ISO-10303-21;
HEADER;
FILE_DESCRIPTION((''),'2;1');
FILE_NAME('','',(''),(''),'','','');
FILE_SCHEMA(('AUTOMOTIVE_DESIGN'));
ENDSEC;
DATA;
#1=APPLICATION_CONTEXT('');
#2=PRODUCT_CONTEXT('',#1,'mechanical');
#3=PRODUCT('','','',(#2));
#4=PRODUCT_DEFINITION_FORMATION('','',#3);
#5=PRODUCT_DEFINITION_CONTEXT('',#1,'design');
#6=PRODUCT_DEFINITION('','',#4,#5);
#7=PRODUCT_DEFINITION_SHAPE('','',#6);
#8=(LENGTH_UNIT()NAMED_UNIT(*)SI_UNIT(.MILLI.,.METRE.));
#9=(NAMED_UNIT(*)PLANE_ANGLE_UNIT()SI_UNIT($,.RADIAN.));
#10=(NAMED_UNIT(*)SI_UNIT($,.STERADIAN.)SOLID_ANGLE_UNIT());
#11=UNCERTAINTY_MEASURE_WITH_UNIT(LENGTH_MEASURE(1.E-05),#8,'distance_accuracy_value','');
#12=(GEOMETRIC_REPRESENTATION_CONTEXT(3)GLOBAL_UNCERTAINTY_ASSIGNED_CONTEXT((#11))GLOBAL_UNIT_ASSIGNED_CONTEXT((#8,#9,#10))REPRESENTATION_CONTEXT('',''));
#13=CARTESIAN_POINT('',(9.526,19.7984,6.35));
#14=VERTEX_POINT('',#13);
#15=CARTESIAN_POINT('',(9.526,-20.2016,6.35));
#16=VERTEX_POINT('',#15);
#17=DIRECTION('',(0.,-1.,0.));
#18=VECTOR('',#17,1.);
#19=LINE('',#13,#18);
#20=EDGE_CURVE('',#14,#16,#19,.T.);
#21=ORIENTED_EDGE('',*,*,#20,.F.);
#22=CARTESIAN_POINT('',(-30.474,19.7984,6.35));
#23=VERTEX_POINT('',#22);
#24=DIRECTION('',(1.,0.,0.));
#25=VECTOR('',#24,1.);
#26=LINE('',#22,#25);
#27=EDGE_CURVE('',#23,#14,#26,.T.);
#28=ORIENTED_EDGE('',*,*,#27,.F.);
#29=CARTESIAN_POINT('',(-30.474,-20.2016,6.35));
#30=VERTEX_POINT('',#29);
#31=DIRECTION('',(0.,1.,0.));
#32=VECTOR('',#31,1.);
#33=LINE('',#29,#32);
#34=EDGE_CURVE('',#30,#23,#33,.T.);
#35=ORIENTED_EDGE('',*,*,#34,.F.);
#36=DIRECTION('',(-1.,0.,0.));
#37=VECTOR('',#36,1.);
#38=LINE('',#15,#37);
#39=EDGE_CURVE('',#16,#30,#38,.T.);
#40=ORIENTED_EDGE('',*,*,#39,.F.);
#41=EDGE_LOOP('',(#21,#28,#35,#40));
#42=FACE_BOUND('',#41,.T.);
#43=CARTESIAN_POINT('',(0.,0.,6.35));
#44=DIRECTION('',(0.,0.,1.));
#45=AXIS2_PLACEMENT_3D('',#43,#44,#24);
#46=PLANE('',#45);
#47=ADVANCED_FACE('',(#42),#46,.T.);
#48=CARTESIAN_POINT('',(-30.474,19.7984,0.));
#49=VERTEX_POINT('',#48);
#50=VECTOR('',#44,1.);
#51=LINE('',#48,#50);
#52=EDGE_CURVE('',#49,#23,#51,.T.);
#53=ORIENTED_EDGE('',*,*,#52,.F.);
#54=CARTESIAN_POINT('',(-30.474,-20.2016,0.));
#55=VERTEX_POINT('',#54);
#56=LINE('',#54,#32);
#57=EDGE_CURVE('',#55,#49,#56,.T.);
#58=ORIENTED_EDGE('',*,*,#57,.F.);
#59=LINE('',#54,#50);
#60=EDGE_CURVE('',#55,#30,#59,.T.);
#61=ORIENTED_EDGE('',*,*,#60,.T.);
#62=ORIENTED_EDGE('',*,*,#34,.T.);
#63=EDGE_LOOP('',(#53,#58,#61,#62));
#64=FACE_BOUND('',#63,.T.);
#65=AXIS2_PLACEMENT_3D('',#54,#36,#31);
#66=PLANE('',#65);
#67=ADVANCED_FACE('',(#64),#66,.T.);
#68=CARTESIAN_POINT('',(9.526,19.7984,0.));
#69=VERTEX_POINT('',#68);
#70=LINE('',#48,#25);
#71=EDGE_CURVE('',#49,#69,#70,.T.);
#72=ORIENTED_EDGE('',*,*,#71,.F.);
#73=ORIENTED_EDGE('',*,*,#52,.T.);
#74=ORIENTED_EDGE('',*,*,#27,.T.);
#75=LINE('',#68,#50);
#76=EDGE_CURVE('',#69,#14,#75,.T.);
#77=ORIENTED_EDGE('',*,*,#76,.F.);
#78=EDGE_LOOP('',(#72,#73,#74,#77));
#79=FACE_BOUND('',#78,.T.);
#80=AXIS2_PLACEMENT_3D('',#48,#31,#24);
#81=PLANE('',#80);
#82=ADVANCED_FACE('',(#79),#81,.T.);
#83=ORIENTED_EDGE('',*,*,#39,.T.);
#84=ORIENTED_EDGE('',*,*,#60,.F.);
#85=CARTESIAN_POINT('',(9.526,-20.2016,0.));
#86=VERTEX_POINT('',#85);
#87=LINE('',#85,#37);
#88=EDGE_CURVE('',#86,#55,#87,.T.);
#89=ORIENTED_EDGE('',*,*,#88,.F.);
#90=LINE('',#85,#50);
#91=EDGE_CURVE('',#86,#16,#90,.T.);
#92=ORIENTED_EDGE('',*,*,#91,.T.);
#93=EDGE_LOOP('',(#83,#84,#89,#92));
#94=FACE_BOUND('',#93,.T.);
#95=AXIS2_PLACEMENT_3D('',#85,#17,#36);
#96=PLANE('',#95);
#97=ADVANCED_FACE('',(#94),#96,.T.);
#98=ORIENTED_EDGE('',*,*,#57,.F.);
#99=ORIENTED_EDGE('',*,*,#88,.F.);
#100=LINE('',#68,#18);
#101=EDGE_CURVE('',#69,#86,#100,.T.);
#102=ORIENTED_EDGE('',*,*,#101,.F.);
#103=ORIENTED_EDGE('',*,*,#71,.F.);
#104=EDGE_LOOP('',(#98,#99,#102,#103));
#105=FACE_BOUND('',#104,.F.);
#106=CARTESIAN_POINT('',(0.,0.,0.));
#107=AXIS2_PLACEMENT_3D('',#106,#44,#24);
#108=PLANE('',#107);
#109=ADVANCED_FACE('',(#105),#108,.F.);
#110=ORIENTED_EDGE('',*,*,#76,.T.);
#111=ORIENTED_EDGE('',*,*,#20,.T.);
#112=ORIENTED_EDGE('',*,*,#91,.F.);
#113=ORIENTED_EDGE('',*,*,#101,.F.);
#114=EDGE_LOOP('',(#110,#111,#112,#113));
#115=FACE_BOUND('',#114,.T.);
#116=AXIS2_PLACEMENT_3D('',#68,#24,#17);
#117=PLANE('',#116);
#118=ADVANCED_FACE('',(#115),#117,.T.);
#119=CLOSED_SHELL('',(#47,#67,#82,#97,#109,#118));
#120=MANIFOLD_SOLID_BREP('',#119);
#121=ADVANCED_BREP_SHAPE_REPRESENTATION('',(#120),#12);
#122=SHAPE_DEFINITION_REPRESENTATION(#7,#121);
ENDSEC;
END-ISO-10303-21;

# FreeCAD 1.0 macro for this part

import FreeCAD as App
import Part
import Sketcher
from FreeCAD import Vector
Q = App.Units.Quantity

doc = App.newDocument("Part")
body = doc.addObject("PartDesign::Body", "Body")

# Sketch on XY plane
sketch1 = body.newObject("Sketcher::SketchObject", "Sketch")
sketch1.AttachmentSupport = (doc.getObject("XY_Plane"), [""])
sketch1.MapMode = "FlatFace"
sketch1.addGeometry([
    Part.LineSegment(Vector(10, 20, 0), Vector(-30, 20, 0)),
    Part.LineSegment(Vector(-30, 20, 0), Vector(-30, -20, 0)),
    Part.LineSegment(Vector(-30, -20, 0), Vector(10, -20, 0)),
    Part.LineSegment(Vector(10, -20, 0), Vector(10, 20, 0)),
], False)
sketch1.addConstraint([
    Sketcher.Constraint("Coincident", 0, 2, 1, 1),
    Sketcher.Constraint("Coincident", 1, 2, 2, 1),
    Sketcher.Constraint("Coincident", 2, 2, 3, 1),
    Sketcher.Constraint("Coincident", 3, 2, 0, 1),
    Sketcher.Constraint("Horizontal", 0),
    Sketcher.Constraint("Vertical", 1),
    Sketcher.Constraint("Horizontal", 2),
    Sketcher.Constraint("Vertical", 3),
    Sketcher.Constraint("Equal", 2, 1),
    Sketcher.Constraint("DistanceX", 0, 2, 0, 1, Q("1.5748 in")),
    Sketcher.Constraint("DistanceX", 0, 2, -1, 1, Q("30.474 mm")),
    Sketcher.Constraint("DistanceY", -1, 1, 0, 2, Q("19.7984 mm")),
])
pad1 = body.newObject("PartDesign::Pad", "Pad")
pad1.Profile = sketch1
pad1.Length = Q("0.25 in")

doc.recompute()
